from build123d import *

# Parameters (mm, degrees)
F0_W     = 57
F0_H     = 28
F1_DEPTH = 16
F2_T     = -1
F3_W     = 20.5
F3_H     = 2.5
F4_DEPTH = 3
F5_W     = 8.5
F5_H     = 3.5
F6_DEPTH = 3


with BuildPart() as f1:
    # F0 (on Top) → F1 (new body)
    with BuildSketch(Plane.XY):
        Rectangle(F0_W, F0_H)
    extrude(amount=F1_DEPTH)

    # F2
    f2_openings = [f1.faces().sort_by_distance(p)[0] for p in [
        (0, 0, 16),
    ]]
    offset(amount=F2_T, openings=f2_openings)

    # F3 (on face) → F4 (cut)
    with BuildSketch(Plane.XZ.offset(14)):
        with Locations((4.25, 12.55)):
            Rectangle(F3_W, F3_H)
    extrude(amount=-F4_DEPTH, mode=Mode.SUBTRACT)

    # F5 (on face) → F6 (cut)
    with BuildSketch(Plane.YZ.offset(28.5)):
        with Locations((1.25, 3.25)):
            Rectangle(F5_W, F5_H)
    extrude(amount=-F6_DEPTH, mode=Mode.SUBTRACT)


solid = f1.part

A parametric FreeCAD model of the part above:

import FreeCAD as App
import Part
import Sketcher


def faces_at(feature, points):
    """Names of the faces that lie closest to the given points."""
    faces = feature.Shape.Faces
    near = lambda p: min(range(len(faces)), key=lambda i: faces[i].distToShape(Part.Vertex(*p))[0])
    return sorted({f"Face{near(p) + 1}" for p in points})

doc = App.newDocument("Part")
body = doc.addObject("PartDesign::Body", "Body")

# Sketch on XY plane
sketch1 = body.newObject("Sketcher::SketchObject", "Sketch")
sketch1.AttachmentSupport = (doc.getObject("XY_Plane"), [""])
sketch1.MapMode = "FlatFace"
sketch1.addGeometry([
    Part.LineSegment(App.Vector(-28.5, 14, 0), App.Vector(-28.5, -14, 0)),
    Part.LineSegment(App.Vector(-28.5, -14, 0), App.Vector(28.5, -14, 0)),
    Part.LineSegment(App.Vector(28.5, -14, 0), App.Vector(28.5, 14, 0)),
    Part.LineSegment(App.Vector(28.5, 14, 0), App.Vector(-28.5, 14, 0)),
], False)
sketch1.addConstraint([
    Sketcher.Constraint("Coincident", 0, 2, 1, 1),
    Sketcher.Constraint("Coincident", 1, 2, 2, 1),
    Sketcher.Constraint("Coincident", 2, 2, 3, 1),
    Sketcher.Constraint("Coincident", 3, 2, 0, 1),
    Sketcher.Constraint("Vertical", 0),
    Sketcher.Constraint("Horizontal", 1),
    Sketcher.Constraint("Vertical", 2),
    Sketcher.Constraint("Horizontal", 3),
    Sketcher.Constraint("Symmetric", 0, 2, 2, 2, -1, 1),
    Sketcher.Constraint("DistanceX", 1, 1, 1, 2, 57.0),
    Sketcher.Constraint("DistanceY", 0, 2, 0, 1, 28.0),
])
pad1 = body.newObject("PartDesign::Pad", "Pad")
pad1.Profile = sketch1
pad1.Length = 16
doc.recompute()

thickness = body.newObject("PartDesign::Thickness", "Thickness")
thickness.Base = (pad1, faces_at(pad1, [(0, 0, 16)]))
thickness.Value = 1
thickness.Reversed = True
thickness.Join = "Arc"

# Sketch on XZ plane
sketch2 = body.newObject("Sketcher::SketchObject", "Sketch001")
sketch2.AttachmentSupport = (doc.getObject("XZ_Plane"), [""])
sketch2.MapMode = "FlatFace"
sketch2.AttachmentOffset = App.Placement(App.Vector(0, 0, 14), App.Rotation())
sketch2.addGeometry([
    Part.LineSegment(App.Vector(-6, 13.8, 0), App.Vector(-6, 11.3, 0)),
    Part.LineSegment(App.Vector(-6, 11.3, 0), App.Vector(14.5, 11.3, 0)),
    Part.LineSegment(App.Vector(14.5, 11.3, 0), App.Vector(14.5, 13.8, 0)),
    Part.LineSegment(App.Vector(14.5, 13.8, 0), App.Vector(-6, 13.8, 0)),
], False)
sketch2.addConstraint([
    Sketcher.Constraint("Coincident", 0, 2, 1, 1),
    Sketcher.Constraint("Coincident", 1, 2, 2, 1),
    Sketcher.Constraint("Coincident", 2, 2, 3, 1),
    Sketcher.Constraint("Coincident", 3, 2, 0, 1),
    Sketcher.Constraint("Vertical", 0),
    Sketcher.Constraint("Horizontal", 1),
    Sketcher.Constraint("Vertical", 2),
    Sketcher.Constraint("Horizontal", 3),
    Sketcher.Constraint("DistanceX", 1, 1, 1, 2, 20.5),
    Sketcher.Constraint("DistanceY", 0, 2, 0, 1, 2.5),
    Sketcher.Constraint("DistanceX", 0, 2, -1, 1, 6.0),
    Sketcher.Constraint("DistanceY", -1, 1, 0, 2, 11.3),
])
pocket1 = body.newObject("PartDesign::Pocket", "Pocket")
pocket1.Profile = sketch2
pocket1.Length = 3

# Sketch on YZ plane
sketch3 = body.newObject("Sketcher::SketchObject", "Sketch002")
sketch3.AttachmentSupport = (doc.getObject("YZ_Plane"), [""])
sketch3.MapMode = "FlatFace"
sketch3.AttachmentOffset = App.Placement(App.Vector(0, 0, 28.5), App.Rotation())
sketch3.addGeometry([
    Part.LineSegment(App.Vector(-3, 5, 0), App.Vector(-3, 1.5, 0)),
    Part.LineSegment(App.Vector(-3, 1.5, 0), App.Vector(5.5, 1.5, 0)),
    Part.LineSegment(App.Vector(5.5, 1.5, 0), App.Vector(5.5, 5, 0)),
    Part.LineSegment(App.Vector(5.5, 5, 0), App.Vector(-3, 5, 0)),
], False)
sketch3.addConstraint([
    Sketcher.Constraint("Coincident", 0, 2, 1, 1),
    Sketcher.Constraint("Coincident", 1, 2, 2, 1),
    Sketcher.Constraint("Coincident", 2, 2, 3, 1),
    Sketcher.Constraint("Coincident", 3, 2, 0, 1),
    Sketcher.Constraint("Vertical", 0),
    Sketcher.Constraint("Horizontal", 1),
    Sketcher.Constraint("Vertical", 2),
    Sketcher.Constraint("Horizontal", 3),
    Sketcher.Constraint("DistanceX", 1, 1, 1, 2, 8.5),
    Sketcher.Constraint("DistanceY", 0, 2, 0, 1, 3.5),
    Sketcher.Constraint("DistanceX", 0, 2, -1, 1, 3.0),
    Sketcher.Constraint("DistanceY", -1, 1, 2, 2, 5.0),
])
pocket2 = body.newObject("PartDesign::Pocket", "Pocket001")
pocket2.Profile = sketch3
pocket2.Length = 3

doc.recompute()
